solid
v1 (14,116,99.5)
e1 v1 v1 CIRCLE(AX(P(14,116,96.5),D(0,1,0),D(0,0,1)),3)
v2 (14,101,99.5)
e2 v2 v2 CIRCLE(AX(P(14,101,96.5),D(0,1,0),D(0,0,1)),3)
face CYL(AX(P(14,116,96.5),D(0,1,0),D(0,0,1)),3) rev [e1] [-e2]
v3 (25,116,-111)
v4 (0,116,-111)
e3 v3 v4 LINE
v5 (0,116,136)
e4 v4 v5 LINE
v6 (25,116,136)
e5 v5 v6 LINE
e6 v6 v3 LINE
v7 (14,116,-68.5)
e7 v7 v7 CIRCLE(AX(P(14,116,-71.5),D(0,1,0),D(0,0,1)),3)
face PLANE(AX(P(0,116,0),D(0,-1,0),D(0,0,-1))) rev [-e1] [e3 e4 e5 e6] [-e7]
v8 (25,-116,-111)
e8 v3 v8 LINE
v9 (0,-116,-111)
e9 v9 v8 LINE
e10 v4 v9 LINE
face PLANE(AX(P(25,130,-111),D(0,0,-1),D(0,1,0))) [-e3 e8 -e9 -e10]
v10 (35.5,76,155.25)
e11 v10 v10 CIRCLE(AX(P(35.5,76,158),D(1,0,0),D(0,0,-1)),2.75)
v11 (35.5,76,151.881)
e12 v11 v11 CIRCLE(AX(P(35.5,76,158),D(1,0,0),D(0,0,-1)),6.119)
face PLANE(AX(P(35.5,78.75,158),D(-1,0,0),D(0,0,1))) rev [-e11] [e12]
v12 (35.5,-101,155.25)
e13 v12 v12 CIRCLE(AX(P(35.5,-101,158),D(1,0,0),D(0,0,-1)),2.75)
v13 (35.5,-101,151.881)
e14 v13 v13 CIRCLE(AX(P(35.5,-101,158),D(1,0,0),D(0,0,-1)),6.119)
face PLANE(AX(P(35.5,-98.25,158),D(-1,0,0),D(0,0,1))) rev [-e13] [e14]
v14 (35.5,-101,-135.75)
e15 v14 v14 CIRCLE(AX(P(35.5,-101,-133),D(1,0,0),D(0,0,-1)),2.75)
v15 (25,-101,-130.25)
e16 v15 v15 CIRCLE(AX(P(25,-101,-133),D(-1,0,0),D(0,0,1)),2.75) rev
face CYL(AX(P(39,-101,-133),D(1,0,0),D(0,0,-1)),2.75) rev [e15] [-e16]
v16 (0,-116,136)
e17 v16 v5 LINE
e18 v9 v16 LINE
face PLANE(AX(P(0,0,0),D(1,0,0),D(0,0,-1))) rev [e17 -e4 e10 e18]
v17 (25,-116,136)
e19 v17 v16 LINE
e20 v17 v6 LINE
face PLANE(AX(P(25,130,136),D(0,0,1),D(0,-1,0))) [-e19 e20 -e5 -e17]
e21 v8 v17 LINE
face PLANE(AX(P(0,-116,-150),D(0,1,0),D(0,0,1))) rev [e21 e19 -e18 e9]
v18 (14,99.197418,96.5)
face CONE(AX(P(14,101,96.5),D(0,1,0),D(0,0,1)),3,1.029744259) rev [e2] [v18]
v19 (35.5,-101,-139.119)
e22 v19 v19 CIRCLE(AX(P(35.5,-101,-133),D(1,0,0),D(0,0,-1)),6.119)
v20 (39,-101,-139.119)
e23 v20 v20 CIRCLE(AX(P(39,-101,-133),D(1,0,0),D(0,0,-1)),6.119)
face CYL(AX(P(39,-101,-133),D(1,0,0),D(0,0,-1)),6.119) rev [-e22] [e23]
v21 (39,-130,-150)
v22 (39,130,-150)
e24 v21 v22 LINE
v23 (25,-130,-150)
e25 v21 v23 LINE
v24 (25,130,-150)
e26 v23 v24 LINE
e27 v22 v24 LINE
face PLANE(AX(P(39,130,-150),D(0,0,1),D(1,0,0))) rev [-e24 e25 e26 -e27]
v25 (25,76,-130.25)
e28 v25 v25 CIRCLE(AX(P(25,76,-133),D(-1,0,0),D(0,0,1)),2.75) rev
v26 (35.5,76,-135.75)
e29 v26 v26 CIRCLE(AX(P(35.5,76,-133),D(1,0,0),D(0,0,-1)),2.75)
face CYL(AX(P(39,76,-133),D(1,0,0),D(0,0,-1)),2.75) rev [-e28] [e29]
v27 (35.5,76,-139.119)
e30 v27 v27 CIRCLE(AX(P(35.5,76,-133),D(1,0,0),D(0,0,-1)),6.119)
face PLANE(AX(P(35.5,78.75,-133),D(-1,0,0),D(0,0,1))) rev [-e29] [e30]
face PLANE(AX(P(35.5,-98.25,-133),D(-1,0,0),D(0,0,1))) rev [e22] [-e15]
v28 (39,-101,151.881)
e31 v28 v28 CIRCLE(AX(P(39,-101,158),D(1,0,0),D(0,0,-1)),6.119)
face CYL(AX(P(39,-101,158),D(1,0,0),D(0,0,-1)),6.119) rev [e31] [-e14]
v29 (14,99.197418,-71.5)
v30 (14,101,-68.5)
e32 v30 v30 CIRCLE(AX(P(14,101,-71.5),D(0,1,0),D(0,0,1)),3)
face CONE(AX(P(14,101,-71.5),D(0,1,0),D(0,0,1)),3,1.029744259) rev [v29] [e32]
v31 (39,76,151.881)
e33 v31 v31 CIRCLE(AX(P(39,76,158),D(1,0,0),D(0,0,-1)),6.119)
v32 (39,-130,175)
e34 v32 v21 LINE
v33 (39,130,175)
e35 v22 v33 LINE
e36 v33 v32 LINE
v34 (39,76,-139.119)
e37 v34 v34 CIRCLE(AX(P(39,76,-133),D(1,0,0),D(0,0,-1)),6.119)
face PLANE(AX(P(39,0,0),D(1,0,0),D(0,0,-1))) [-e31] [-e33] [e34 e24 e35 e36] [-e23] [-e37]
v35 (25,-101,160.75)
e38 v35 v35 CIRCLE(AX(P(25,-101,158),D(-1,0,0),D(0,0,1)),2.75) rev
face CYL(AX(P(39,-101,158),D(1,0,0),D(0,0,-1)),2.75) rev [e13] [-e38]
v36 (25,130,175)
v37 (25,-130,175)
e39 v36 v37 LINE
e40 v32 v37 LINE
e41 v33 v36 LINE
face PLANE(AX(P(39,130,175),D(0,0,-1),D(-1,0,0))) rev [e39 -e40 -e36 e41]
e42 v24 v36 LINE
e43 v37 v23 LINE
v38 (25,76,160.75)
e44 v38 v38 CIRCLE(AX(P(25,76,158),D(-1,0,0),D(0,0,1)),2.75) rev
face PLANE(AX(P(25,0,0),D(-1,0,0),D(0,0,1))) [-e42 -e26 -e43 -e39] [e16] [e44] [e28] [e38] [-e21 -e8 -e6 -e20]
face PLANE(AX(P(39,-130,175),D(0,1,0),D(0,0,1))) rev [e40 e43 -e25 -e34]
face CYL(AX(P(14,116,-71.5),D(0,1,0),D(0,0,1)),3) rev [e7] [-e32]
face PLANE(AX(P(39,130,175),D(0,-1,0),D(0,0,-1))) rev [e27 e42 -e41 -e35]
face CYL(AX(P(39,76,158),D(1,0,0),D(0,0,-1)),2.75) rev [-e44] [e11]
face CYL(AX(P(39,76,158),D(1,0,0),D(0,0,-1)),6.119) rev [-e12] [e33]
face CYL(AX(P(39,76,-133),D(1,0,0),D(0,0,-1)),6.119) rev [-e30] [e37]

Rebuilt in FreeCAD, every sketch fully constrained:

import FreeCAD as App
import Part
import Sketcher
Q = App.Units.Quantity


def add_polygon(sketch, points):
    """Adds a closed chain of lines whose ends are joined by coincident constraints."""
    first, n = sketch.GeometryCount, len(points)
    for a, b in zip(points, points[1:] + points[:1]):
        sketch.addGeometry(Part.LineSegment(App.Vector(*a, 0), App.Vector(*b, 0)), False)
    for i in range(n):
        sketch.addConstraint(Sketcher.Constraint("Coincident", first + i, 2, first + (i + 1) % n, 1))

doc = App.newDocument("Part")
body = doc.addObject("PartDesign::Body", "Body")

sketch1 = body.newObject("Sketcher::SketchObject", "Sketch")
sketch1.AttachmentSupport = (doc.getObject("YZ_Plane"), [""])
sketch1.MapMode = "FlatFace"
add_polygon(sketch1, [(130, 175), (-130, 175), (-130, -150), (130, -150)])
sketch1.addConstraint(Sketcher.Constraint("Horizontal", 0))
sketch1.addConstraint(Sketcher.Constraint("Vertical", 1))
sketch1.addConstraint(Sketcher.Constraint("Horizontal", 2))
sketch1.addConstraint(Sketcher.Constraint("Vertical", 3))
sketch1.addConstraint(Sketcher.Constraint("DistanceX", 0, 2, 0, 1, Q("260 mm")))
sketch1.addConstraint(Sketcher.Constraint("DistanceY", 1, 2, 1, 1, Q("325 mm")))
sketch1.addConstraint(Sketcher.Constraint("DistanceX", 0, 2, -1, 1, Q("130 mm")))
sketch1.addConstraint(Sketcher.Constraint("DistanceY", -1, 1, 0, 2, Q("175 mm")))
pad1 = body.newObject("PartDesign::Pad", "Pad")
pad1.Profile = sketch1
pad1.Length = 39

sketch2 = body.newObject("Sketcher::SketchObject", "Sketch001")
sketch2.AttachmentSupport = (doc.getObject("YZ_Plane"), [""])
sketch2.MapMode = "FlatFace"
sketch2.AttachmentOffset = App.Placement(App.Vector(0, 0, 39), App.Rotation())
sketch2.addGeometry(Part.Circle(App.Vector(-101, -133, 0), App.Vector(0, 0, 1), 2.75), False)
sketch2.addGeometry(Part.Circle(App.Vector(76, -133, 0), App.Vector(0, 0, 1), 2.75), False)
sketch2.addGeometry(Part.Circle(App.Vector(76, 158, 0), App.Vector(0, 0, 1), 2.75), False)
sketch2.addGeometry(Part.Circle(App.Vector(-101, 158, 0), App.Vector(0, 0, 1), 2.75), False)
sketch2.addConstraint(Sketcher.Constraint("Equal", 0, 1))
sketch2.addConstraint(Sketcher.Constraint("Equal", 1, 2))
sketch2.addConstraint(Sketcher.Constraint("Equal", 2, 3))
sketch2.addConstraint(Sketcher.Constraint("Horizontal", 0, 3, 1, 3))
sketch2.addConstraint(Sketcher.Constraint("Horizontal", 2, 3, 3, 3))
sketch2.addConstraint(Sketcher.Constraint("Vertical", 1, 3, 2, 3))
sketch2.addConstraint(Sketcher.Constraint("Vertical", 0, 3, 3, 3))
sketch2.addConstraint(Sketcher.Constraint("Diameter", 0, Q("5.5 mm")))
sketch2.addConstraint(Sketcher.Constraint("DistanceX", 0, 3, -1, 1, Q("101 mm")))
sketch2.addConstraint(Sketcher.Constraint("DistanceY", 0, 3, -1, 1, Q("133 mm")))
sketch2.addConstraint(Sketcher.Constraint("DistanceX", -1, 1, 1, 3, Q("76 mm")))
sketch2.addConstraint(Sketcher.Constraint("DistanceY", -1, 1, 2, 3, Q("158 mm")))
doc.recompute()
hole = body.newObject("PartDesign::Hole", "Hole")
hole.Profile = sketch2
hole.ThreadType = "None"
hole.Diameter = 5.5
hole.DepthType = "Dimension"
hole.Depth = 30
hole.DrillPoint = "Angled"
hole.DrillPointAngle = 118
hole.HoleCutType = "Counterbore"
hole.HoleCutDiameter = 12.238
hole.HoleCutDepth = 3.5

sketch3 = body.newObject("Sketcher::SketchObject", "Sketch002")
sketch3.AttachmentSupport = (doc.getObject("YZ_Plane"), [""])
sketch3.MapMode = "FlatFace"
add_polygon(sketch3, [(130, -111), (-130, -111), (-130, -150), (130, -150)])
add_polygon(sketch3, [(130, 175), (-130, 175), (-130, 136), (130, 136)])
sketch3.addConstraint(Sketcher.Constraint("Horizontal", 0))
sketch3.addConstraint(Sketcher.Constraint("Vertical", 1))
sketch3.addConstraint(Sketcher.Constraint("Horizontal", 2))
sketch3.addConstraint(Sketcher.Constraint("Vertical", 3))
sketch3.addConstraint(Sketcher.Constraint("Horizontal", 4))
sketch3.addConstraint(Sketcher.Constraint("Vertical", 5))
sketch3.addConstraint(Sketcher.Constraint("Horizontal", 6))
sketch3.addConstraint(Sketcher.Constraint("Vertical", 7))
sketch3.addConstraint(Sketcher.Constraint("Vertical", 1, 2, 4, 2))
sketch3.addConstraint(Sketcher.Constraint("Vertical", 3, 2, 6, 2))
sketch3.addConstraint(Sketcher.Constraint("Equal", 3, 5))
sketch3.addConstraint(Sketcher.Constraint("DistanceX", 0, 2, 0, 1, Q("260 mm")))
sketch3.addConstraint(Sketcher.Constraint("DistanceY", 1, 2, 1, 1, Q("39 mm")))
sketch3.addConstraint(Sketcher.Constraint("DistanceX", 0, 2, -1, 1, Q("130 mm")))
sketch3.addConstraint(Sketcher.Constraint("DistanceY", 0, 2, -1, 1, Q("111 mm")))
sketch3.addConstraint(Sketcher.Constraint("DistanceY", -1, 1, 4, 2, Q("175 mm")))
pocket1 = body.newObject("PartDesign::Pocket", "Pocket")
pocket1.Profile = sketch3
pocket1.Length = 25
pocket1.Reversed = True

sketch4 = body.newObject("Sketcher::SketchObject", "Sketch003")
sketch4.AttachmentSupport = (doc.getObject("XZ_Plane"), [""])
sketch4.MapMode = "FlatFace"
sketch4.AttachmentOffset = App.Placement(App.Vector(0, 0, -130), App.Rotation())
add_polygon(sketch4, [(0, -111), (0, 136), (25, 136), (25, -111)])
sketch4.addConstraint(Sketcher.Constraint("Vertical", 0))
sketch4.addConstraint(Sketcher.Constraint("Horizontal", 1))
sketch4.addConstraint(Sketcher.Constraint("Vertical", 2))
sketch4.addConstraint(Sketcher.Constraint("Horizontal", 3))
sketch4.addConstraint(Sketcher.Constraint("PointOnObject", 0, 2, -2))
sketch4.addConstraint(Sketcher.Constraint("DistanceX", 1, 1, 1, 2, Q("25 mm")))
sketch4.addConstraint(Sketcher.Constraint("DistanceY", 0, 1, 0, 2, Q("247 mm")))
sketch4.addConstraint(Sketcher.Constraint("DistanceY", -1, 1, 0, 2, Q("136 mm")))
pocket2 = body.newObject("PartDesign::Pocket", "Pocket001")
pocket2.Profile = sketch4
pocket2.Length = 14
pocket2.Reversed = True

sketch5 = body.newObject("Sketcher::SketchObject", "Sketch004")
sketch5.AttachmentSupport = (doc.getObject("XZ_Plane"), [""])
sketch5.MapMode = "FlatFace"
sketch5.AttachmentOffset = App.Placement(App.Vector(0, 0, -116), App.Rotation())
sketch5.addGeometry(Part.Circle(App.Vector(14, -71.5, 0), App.Vector(0, 0, 1), 3), False)
sketch5.addGeometry(Part.Circle(App.Vector(14, 96.5, 0), App.Vector(0, 0, 1), 3), False)
sketch5.addConstraint(Sketcher.Constraint("Equal", 0, 1))
sketch5.addConstraint(Sketcher.Constraint("Vertical", 0, 3, 1, 3))
sketch5.addConstraint(Sketcher.Constraint("Diameter", 0, Q("6 mm")))
sketch5.addConstraint(Sketcher.Constraint("DistanceX", -1, 1, 0, 3, Q("14 mm")))
sketch5.addConstraint(Sketcher.Constraint("DistanceY", 0, 3, 1, 3, Q("168 mm")))
sketch5.addConstraint(Sketcher.Constraint("DistanceY", 0, 3, -1, 1, Q("71.5 mm")))
doc.recompute()
hole2 = body.newObject("PartDesign::Hole", "Hole001")
hole2.Profile = sketch5
hole2.ThreadType = "None"
hole2.Diameter = 6
hole2.DepthType = "Dimension"
hole2.Depth = 15
hole2.DrillPoint = "Angled"
hole2.DrillPointAngle = 118
hole2.Reversed = True

sketch6 = body.newObject("Sketcher::SketchObject", "Sketch005")
sketch6.AttachmentSupport = (doc.getObject("XY_Plane"), [""])
sketch6.MapMode = "FlatFace"
add_polygon(sketch6, [(0, -116), (0, -130), (25, -130), (25, -116)])
sketch6.addConstraint(Sketcher.Constraint("Vertical", 0))
sketch6.addConstraint(Sketcher.Constraint("Horizontal", 1))
sketch6.addConstraint(Sketcher.Constraint("Vertical", 2))
sketch6.addConstraint(Sketcher.Constraint("Horizontal", 3))
sketch6.addConstraint(Sketcher.Constraint("PointOnObject", 0, 2, -2))
sketch6.addConstraint(Sketcher.Constraint("DistanceX", 1, 1, 1, 2, Q("25 mm")))
sketch6.addConstraint(Sketcher.Constraint("DistanceY", 0, 2, 0, 1, Q("14 mm")))
sketch6.addConstraint(Sketcher.Constraint("DistanceY", 0, 2, -1, 1, Q("130 mm")))
pocket3 = body.newObject("PartDesign::Pocket", "Pocket002")
pocket3.Profile = sketch6
pocket3.Type = "ThroughAll"
pocket3.Midplane = True

doc.recompute()
